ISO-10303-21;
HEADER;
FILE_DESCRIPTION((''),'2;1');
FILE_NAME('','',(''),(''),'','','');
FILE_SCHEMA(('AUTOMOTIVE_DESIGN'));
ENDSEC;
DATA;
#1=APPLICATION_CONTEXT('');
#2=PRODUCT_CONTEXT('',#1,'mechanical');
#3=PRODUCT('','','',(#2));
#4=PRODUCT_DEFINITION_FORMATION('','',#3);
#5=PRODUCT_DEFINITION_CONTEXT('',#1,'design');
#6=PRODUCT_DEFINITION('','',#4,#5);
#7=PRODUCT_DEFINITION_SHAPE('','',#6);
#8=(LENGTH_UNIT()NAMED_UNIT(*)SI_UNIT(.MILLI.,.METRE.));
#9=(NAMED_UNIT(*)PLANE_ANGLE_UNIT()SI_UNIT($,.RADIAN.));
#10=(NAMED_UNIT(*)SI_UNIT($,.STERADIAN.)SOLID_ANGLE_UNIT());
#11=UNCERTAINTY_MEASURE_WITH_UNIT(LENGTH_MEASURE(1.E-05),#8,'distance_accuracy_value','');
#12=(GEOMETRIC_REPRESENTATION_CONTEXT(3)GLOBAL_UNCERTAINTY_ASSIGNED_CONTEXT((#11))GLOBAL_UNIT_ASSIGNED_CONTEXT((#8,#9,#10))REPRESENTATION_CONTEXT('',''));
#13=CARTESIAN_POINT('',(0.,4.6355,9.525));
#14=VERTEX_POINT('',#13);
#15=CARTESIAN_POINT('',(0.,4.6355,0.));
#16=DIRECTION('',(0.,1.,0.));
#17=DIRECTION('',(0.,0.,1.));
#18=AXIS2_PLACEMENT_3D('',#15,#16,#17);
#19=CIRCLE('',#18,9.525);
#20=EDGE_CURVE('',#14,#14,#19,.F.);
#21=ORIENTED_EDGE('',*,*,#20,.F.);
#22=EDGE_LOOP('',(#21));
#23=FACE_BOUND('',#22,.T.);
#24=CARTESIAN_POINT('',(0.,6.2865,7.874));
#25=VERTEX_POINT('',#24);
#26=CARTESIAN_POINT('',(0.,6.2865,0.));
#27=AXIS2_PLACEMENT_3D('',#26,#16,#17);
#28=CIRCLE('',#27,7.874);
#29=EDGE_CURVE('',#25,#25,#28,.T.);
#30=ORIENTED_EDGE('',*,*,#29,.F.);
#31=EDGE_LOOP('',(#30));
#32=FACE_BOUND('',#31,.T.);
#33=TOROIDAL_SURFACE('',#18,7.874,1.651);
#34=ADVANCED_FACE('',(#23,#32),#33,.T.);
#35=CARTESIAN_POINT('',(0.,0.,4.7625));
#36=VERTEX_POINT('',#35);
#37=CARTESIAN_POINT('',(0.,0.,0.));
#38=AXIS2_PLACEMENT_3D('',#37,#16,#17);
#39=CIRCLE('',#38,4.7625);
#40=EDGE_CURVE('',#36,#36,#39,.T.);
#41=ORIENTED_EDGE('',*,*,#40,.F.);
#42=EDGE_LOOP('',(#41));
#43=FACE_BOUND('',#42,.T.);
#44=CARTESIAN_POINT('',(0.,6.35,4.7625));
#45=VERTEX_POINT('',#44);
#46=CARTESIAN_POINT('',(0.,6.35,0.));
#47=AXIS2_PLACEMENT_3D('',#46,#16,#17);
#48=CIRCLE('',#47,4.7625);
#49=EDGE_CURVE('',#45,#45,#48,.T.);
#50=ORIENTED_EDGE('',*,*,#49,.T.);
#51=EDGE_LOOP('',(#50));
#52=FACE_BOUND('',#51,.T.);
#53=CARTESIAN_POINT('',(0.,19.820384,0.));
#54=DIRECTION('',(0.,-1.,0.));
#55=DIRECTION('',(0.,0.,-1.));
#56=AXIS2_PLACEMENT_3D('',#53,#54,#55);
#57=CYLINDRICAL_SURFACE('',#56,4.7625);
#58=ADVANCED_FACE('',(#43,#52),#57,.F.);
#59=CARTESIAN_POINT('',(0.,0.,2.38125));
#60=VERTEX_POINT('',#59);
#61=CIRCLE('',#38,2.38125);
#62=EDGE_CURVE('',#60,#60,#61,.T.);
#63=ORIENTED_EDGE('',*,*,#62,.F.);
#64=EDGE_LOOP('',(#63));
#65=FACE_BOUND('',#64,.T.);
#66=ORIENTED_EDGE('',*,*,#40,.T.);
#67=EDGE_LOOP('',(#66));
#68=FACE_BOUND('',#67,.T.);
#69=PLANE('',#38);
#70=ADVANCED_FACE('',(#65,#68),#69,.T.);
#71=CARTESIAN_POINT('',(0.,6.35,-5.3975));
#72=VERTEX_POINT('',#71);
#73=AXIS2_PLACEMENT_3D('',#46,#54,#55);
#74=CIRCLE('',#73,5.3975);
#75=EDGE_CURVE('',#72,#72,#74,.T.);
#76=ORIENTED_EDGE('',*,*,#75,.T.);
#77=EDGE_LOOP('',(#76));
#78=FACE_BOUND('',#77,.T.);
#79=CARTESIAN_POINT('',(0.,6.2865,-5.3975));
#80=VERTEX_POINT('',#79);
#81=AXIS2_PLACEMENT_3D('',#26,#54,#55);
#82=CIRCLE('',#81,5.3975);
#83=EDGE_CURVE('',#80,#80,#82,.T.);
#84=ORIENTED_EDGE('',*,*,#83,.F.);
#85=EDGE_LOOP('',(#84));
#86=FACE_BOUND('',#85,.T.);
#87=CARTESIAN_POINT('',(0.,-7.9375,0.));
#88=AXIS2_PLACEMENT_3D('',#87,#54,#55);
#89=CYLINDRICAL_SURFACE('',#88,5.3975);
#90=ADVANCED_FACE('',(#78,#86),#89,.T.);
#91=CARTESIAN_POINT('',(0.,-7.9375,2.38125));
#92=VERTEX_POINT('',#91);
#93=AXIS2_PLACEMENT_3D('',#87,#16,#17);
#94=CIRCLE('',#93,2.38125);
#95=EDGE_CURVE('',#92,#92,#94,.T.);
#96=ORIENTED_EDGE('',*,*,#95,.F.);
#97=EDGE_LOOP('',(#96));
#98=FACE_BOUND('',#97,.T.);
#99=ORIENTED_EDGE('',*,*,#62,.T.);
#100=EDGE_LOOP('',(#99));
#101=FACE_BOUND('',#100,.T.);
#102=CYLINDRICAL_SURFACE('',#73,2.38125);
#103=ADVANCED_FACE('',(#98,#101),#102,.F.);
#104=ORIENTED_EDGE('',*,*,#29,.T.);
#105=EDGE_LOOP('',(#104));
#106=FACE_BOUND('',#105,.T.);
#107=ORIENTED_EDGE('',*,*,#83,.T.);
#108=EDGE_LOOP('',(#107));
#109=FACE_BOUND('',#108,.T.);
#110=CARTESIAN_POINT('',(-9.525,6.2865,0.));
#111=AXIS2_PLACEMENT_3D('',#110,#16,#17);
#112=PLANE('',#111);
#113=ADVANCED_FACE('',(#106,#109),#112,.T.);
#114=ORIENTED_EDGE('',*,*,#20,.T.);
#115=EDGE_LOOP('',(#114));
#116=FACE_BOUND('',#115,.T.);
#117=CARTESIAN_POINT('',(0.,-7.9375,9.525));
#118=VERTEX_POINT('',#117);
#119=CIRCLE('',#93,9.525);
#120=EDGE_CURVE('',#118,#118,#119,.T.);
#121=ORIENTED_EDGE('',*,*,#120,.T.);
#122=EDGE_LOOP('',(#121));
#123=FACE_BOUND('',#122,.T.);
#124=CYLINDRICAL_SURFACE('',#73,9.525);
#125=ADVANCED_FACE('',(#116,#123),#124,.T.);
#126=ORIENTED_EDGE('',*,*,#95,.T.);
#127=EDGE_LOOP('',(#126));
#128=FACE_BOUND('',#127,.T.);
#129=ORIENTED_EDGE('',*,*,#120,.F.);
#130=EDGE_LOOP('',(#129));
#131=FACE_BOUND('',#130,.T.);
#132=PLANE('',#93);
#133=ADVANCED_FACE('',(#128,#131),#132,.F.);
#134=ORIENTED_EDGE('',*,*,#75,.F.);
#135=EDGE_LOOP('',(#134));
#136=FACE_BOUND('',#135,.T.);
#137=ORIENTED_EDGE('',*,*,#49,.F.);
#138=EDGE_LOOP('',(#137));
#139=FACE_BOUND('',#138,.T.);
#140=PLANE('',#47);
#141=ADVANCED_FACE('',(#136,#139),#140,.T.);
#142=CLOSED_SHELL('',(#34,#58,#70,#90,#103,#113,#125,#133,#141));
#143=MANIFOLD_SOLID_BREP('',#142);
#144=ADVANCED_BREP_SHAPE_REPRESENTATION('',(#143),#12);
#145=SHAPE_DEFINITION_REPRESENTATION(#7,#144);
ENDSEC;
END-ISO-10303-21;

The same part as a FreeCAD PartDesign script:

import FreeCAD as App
import Part
import Sketcher

V = App.Vector
Q = App.Units.Quantity


def edges_at(feature, points):
    """Names of the edges that pass closest to the given points."""
    edges = feature.Shape.Edges
    near = lambda p: min(range(len(edges)), key=lambda i: edges[i].distToShape(Part.Vertex(*p))[0])
    return sorted({f"Edge{near(p) + 1}" for p in points})

doc = App.newDocument("Part")
body = doc.addObject("PartDesign::Body", "Body")

# Sketch on XZ plane
sketch1 = body.newObject("Sketcher::SketchObject", "Sketch")
sketch1.AttachmentSupport = (doc.getObject("XZ_Plane"), [""])
sketch1.MapMode = "FlatFace"
sketch1.addGeometry([
    Part.Circle(V(0, 0, 0), V(0, 0, 1), 9.5),
    Part.Circle(V(0, 0, 0), V(0, 0, 1), 2.4),
], False)
sketch1.addConstraint([
    Sketcher.Constraint("Coincident", 0, 3, -1, 1),
    Sketcher.Constraint("Coincident", 1, 3, -1, 1),
    Sketcher.Constraint("Diameter", 0, Q("0.75 in")),
    Sketcher.Constraint("Diameter", 1, Q("0.1875 in")),
])
pad1 = body.newObject("PartDesign::Pad", "Pad")
pad1.Profile = sketch1
pad1.Type = "TwoLengths"
pad1.Length = Q("0.25 in")
pad1.Length2 = Q("0.3125 in")
pad1.Reversed = True

# Sketch on XZ plane
sketch2 = body.newObject("Sketcher::SketchObject", "Sketch001")
sketch2.AttachmentSupport = (doc.getObject("XZ_Plane"), [""])
sketch2.MapMode = "FlatFace"
sketch2.addGeometry(Part.Circle(V(0, 0, 0), V(0, 0, 1), 4.8), False)
sketch2.addConstraint([
    Sketcher.Constraint("Coincident", 0, 3, -1, 1),
    Sketcher.Constraint("Diameter", 0, Q("0.375 in")),
])
pocket1 = body.newObject("PartDesign::Pocket", "Pocket")
pocket1.Profile = sketch2
pocket1.Length = Q("0.25 in")

# Sketch on XY plane
sketch3 = body.newObject("Sketcher::SketchObject", "Sketch002")
sketch3.AttachmentSupport = (doc.getObject("XY_Plane"), [""])
sketch3.MapMode = "FlatFace"
sketch3.addGeometry([
    Part.LineSegment(V(-9.53, 6.35, 0), V(-9.53, 6.29, 0)),
    Part.LineSegment(V(-9.53, 6.29, 0), V(-5.4, 6.29, 0)),
    Part.LineSegment(V(-5.4, 6.29, 0), V(-5.4, 6.35, 0)),
    Part.LineSegment(V(-5.4, 6.35, 0), V(-9.53, 6.35, 0)),
], False)
sketch3.addConstraint([
    Sketcher.Constraint("Coincident", 0, 2, 1, 1),
    Sketcher.Constraint("Coincident", 1, 2, 2, 1),
    Sketcher.Constraint("Coincident", 2, 2, 3, 1),
    Sketcher.Constraint("Coincident", 3, 2, 0, 1),
    Sketcher.Constraint("Vertical", 0),
    Sketcher.Constraint("Horizontal", 1),
    Sketcher.Constraint("Vertical", 2),
    Sketcher.Constraint("Horizontal", 3),
    Sketcher.Constraint("DistanceY", -1, 1, 2, 2, Q("0.25 in")),
    Sketcher.Constraint("DistanceX", 1, 1, 1, 2, Q("0.1625 in")),
    Sketcher.Constraint("DistanceY", 0, 2, 0, 1, Q("0.0025 in")),
    Sketcher.Constraint("DistanceX", 0, 2, -1, 1, Q("0.375 in")),
])
groove = body.newObject("PartDesign::Groove", "Groove")
groove.Profile = sketch3
groove.ReferenceAxis = (sketch3, ["V_Axis"])
groove.Angle = 360
doc.recompute()

fillet = body.newObject("PartDesign::Fillet", "Fillet")
fillet.Base = (groove, edges_at(groove, [(-9.525, 6.287, 0)]))
fillet.Radius = Q("0.065 in")

doc.recompute()
